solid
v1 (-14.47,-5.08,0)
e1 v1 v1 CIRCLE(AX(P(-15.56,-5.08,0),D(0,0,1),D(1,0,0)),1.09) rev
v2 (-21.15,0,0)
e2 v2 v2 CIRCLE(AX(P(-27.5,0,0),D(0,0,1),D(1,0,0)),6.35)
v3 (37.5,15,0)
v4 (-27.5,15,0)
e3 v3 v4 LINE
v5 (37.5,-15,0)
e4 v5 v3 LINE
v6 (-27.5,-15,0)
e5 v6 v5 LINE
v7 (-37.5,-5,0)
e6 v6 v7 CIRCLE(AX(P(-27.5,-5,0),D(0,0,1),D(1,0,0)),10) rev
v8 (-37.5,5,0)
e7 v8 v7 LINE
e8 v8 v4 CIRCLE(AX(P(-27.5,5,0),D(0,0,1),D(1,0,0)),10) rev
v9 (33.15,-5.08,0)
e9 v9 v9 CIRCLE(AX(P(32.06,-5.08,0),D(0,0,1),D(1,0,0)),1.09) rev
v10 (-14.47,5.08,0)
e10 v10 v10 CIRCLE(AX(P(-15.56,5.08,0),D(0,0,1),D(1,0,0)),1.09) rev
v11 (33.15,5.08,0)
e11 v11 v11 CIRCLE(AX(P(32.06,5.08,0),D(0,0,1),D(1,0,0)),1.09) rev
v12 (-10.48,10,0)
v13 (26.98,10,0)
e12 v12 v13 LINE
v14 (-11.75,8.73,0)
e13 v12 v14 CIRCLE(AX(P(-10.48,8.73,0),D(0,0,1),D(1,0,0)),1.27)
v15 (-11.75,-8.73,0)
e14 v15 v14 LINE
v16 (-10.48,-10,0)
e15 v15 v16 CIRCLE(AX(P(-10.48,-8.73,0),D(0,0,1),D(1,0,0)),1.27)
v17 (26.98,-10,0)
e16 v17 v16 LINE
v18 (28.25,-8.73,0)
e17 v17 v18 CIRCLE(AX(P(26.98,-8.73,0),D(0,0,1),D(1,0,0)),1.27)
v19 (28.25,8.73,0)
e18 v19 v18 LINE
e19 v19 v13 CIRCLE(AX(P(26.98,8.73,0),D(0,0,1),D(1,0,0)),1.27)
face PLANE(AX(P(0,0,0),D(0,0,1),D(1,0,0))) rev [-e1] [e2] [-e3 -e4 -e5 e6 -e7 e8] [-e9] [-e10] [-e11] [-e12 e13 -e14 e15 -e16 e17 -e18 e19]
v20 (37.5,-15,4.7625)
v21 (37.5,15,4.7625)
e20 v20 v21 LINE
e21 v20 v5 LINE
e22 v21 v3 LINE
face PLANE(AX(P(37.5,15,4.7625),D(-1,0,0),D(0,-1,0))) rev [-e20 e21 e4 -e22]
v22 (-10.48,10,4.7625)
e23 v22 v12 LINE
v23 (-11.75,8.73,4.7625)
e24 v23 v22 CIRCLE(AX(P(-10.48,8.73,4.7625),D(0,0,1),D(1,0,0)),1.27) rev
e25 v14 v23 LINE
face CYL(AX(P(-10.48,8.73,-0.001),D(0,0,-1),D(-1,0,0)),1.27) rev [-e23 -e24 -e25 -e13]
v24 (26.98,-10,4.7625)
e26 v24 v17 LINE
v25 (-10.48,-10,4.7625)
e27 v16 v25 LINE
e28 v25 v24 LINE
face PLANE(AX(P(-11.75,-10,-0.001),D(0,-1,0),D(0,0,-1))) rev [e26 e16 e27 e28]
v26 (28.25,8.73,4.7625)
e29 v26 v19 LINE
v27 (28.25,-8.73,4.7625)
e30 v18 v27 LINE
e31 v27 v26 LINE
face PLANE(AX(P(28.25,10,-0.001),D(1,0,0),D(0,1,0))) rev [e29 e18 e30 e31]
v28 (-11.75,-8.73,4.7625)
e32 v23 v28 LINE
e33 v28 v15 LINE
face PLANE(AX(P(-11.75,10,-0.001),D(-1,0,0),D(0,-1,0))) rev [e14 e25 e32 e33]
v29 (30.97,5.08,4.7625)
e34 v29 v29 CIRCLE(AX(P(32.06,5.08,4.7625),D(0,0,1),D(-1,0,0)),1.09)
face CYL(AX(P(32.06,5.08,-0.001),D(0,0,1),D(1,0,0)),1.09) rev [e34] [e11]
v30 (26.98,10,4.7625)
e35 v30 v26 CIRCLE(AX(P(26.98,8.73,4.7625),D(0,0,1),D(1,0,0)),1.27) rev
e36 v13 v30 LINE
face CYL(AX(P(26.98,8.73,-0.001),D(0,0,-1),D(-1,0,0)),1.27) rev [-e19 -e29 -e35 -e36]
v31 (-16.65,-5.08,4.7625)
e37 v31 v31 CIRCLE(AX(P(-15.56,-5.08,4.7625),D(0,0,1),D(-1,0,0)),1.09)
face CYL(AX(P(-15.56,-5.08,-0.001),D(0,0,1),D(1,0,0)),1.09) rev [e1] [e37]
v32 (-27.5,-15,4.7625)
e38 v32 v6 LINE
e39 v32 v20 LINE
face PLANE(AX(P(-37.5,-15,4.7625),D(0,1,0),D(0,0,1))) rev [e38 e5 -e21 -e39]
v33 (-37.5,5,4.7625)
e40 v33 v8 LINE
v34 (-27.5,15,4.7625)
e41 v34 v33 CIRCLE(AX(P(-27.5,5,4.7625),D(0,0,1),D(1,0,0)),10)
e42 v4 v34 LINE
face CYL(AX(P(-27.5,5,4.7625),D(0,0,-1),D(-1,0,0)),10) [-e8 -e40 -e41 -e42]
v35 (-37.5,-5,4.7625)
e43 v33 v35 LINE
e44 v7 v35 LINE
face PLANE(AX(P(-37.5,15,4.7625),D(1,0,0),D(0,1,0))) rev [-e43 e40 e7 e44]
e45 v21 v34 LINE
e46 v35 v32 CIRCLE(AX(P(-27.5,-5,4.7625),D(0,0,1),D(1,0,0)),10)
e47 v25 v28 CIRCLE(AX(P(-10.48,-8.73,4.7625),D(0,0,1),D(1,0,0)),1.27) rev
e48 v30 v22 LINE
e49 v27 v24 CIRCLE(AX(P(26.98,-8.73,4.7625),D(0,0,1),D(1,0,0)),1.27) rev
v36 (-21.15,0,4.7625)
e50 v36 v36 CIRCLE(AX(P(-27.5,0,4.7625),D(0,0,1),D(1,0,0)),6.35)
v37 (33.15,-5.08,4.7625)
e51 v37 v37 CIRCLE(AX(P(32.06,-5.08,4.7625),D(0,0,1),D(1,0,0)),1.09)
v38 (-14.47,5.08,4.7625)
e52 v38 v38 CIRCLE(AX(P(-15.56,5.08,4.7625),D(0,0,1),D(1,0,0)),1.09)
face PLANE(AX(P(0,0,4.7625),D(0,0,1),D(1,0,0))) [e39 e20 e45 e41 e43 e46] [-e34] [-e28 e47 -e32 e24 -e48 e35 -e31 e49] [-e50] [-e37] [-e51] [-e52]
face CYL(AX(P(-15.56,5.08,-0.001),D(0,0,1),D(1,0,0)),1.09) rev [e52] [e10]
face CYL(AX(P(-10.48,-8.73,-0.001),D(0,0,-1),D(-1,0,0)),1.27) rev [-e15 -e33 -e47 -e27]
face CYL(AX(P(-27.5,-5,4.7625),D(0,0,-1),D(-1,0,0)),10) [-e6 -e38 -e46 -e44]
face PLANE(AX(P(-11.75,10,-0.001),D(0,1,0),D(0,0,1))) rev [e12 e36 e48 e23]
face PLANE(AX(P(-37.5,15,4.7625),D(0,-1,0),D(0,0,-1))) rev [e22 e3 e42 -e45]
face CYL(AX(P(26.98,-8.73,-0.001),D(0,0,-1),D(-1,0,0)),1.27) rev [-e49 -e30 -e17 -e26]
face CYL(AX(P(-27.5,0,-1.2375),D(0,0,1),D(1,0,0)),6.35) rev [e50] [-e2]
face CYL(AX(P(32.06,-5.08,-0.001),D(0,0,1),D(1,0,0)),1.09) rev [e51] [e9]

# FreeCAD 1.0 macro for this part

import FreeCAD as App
import Part
import Sketcher
Q = App.Units.Quantity


def edges_at(feature, points):
    """Names of the edges that pass closest to the given points."""
    edges = feature.Shape.Edges
    near = lambda p: min(range(len(edges)), key=lambda i: edges[i].distToShape(Part.Vertex(*p))[0])
    return sorted({f"Edge{near(p) + 1}" for p in points})


def add_polygon(sketch, points):
    """Adds a closed chain of lines whose ends are joined by coincident constraints."""
    first, n = sketch.GeometryCount, len(points)
    for a, b in zip(points, points[1:] + points[:1]):
        sketch.addGeometry(Part.LineSegment(App.Vector(*a, 0), App.Vector(*b, 0)), False)
    for i in range(n):
        sketch.addConstraint(Sketcher.Constraint("Coincident", first + i, 2, first + (i + 1) % n, 1))

doc = App.newDocument("Part")
body = doc.addObject("PartDesign::Body", "Body")

# Sketch on XY plane
sketch1 = body.newObject("Sketcher::SketchObject", "Sketch")
sketch1.AttachmentSupport = (doc.getObject("XY_Plane"), [""])
sketch1.MapMode = "FlatFace"
add_polygon(sketch1, [(-38, 15), (-38, -15), (38, -15), (38, 15)])  # lines 0-3
sketch1.addConstraint([
    Sketcher.Constraint("Vertical", 0),
    Sketcher.Constraint("Horizontal", 1),
    Sketcher.Constraint("Vertical", 2),
    Sketcher.Constraint("Horizontal", 3),
    Sketcher.Constraint("Symmetric", 0, 2, 2, 2, -1, 1),
    Sketcher.Constraint("DistanceX", 1, 1, 1, 2, Q("75 mm")),
    Sketcher.Constraint("DistanceY", 0, 2, 0, 1, Q("30 mm")),
])
pad1 = body.newObject("PartDesign::Pad", "Pad")
pad1.Profile = sketch1
pad1.Length = 4.7625
doc.recompute()

fillet = body.newObject("PartDesign::Fillet", "Fillet")
fillet.Base = (pad1, edges_at(pad1, [(-37.5, -15, 2.381), (-37.5, 15, 2.381)]))
fillet.Radius = 10

# Sketch on XY plane
sketch2 = body.newObject("Sketcher::SketchObject", "Sketch001")
sketch2.AttachmentSupport = (doc.getObject("XY_Plane"), [""])
sketch2.MapMode = "FlatFace"
sketch2.AttachmentOffset = App.Placement(App.Vector(0, 0, 4.7625), App.Rotation())
sketch2.addGeometry(Part.Circle(App.Vector(-28, 0, 0), App.Vector(0, 0, 1), 6), False)
sketch2.addConstraint([
    Sketcher.Constraint("PointOnObject", 0, 3, -1),
    Sketcher.Constraint("Diameter", 0, Q("12.7 mm")),
    Sketcher.Constraint("DistanceX", 0, 3, -1, 1, Q("27.5 mm")),
])
pocket1 = body.newObject("PartDesign::Pocket", "Pocket")
pocket1.Profile = sketch2
pocket1.Length = 6

# Sketch on XY plane
sketch3 = body.newObject("Sketcher::SketchObject", "Sketch002")
sketch3.AttachmentSupport = (doc.getObject("XY_Plane"), [""])
sketch3.MapMode = "FlatFace"
sketch3.AttachmentOffset = App.Placement(App.Vector(0, 0, 4.7625), App.Rotation())
add_polygon(sketch3, [(-12, 10), (-12, -10), (28, -10), (28, 10)])  # lines 0-3
sketch3.addConstraint([
    Sketcher.Constraint("Vertical", 0),
    Sketcher.Constraint("Horizontal", 1),
    Sketcher.Constraint("Vertical", 2),
    Sketcher.Constraint("Horizontal", 3),
    Sketcher.Constraint("DistanceX", 1, 1, 1, 2, Q("40 mm")),
    Sketcher.Constraint("DistanceY", 0, 2, 0, 1, Q("20 mm")),
    Sketcher.Constraint("DistanceY", 0, 2, -1, 1, Q("10 mm")),
    Sketcher.Constraint("DistanceX", 0, 2, -1, 1, Q("11.75 mm")),
])
pocket2 = body.newObject("PartDesign::Pocket", "Pocket001")
pocket2.Profile = sketch3
pocket2.Type = "UpToFirst"
doc.recompute()

fillet2 = body.newObject("PartDesign::Fillet", "Fillet001")
fillet2.Base = (pocket2, edges_at(pocket2, [
    (-11.75, -10, 2.381),
    (-11.75, 10, 2.381),
    (28.25, 10, 2.381),
    (28.25, -10, 2.381),
]))
fillet2.Radius = 1.27

# Sketch on XY plane
sketch4 = body.newObject("Sketcher::SketchObject", "Sketch003")
sketch4.AttachmentSupport = (doc.getObject("XY_Plane"), [""])
sketch4.MapMode = "FlatFace"
sketch4.AttachmentOffset = App.Placement(App.Vector(0, 0, 4.7625), App.Rotation())
sketch4.addGeometry(Part.Circle(App.Vector(-15.6, 5.1, 0), App.Vector(0, 0, 1), 1.1), False)
sketch4.addConstraint([
    Sketcher.Constraint("Diameter", 0, Q("2.18 mm")),
    Sketcher.Constraint("DistanceX", 0, 3, -1, 1, Q("15.56 mm")),
    Sketcher.Constraint("DistanceY", -1, 1, 0, 3, Q("5.08 mm")),
])
pocket3 = body.newObject("PartDesign::Pocket", "Pocket002")
pocket3.Profile = sketch4
pocket3.Type = "UpToFirst"

# Sketch on XY plane
sketch5 = body.newObject("Sketcher::SketchObject", "Sketch004")
sketch5.AttachmentSupport = (doc.getObject("XY_Plane"), [""])
sketch5.MapMode = "FlatFace"
sketch5.AttachmentOffset = App.Placement(App.Vector(0, 0, 4.7625), App.Rotation())
sketch5.addGeometry(Part.Circle(App.Vector(-15.6, -5.1, 0), App.Vector(0, 0, 1), 1.1), False)
sketch5.addConstraint([
    Sketcher.Constraint("Diameter", 0, Q("2.18 mm")),
    Sketcher.Constraint("DistanceX", 0, 3, -1, 1, Q("15.56 mm")),
    Sketcher.Constraint("DistanceY", 0, 3, -1, 1, Q("5.08 mm")),
])
pocket4 = body.newObject("PartDesign::Pocket", "Pocket003")
pocket4.Profile = sketch5
pocket4.Type = "UpToFirst"

# Sketch on XY plane
sketch6 = body.newObject("Sketcher::SketchObject", "Sketch005")
sketch6.AttachmentSupport = (doc.getObject("XY_Plane"), [""])
sketch6.MapMode = "FlatFace"
sketch6.AttachmentOffset = App.Placement(App.Vector(0, 0, 4.7625), App.Rotation())
sketch6.addGeometry(Part.Circle(App.Vector(32.1, -5.1, 0), App.Vector(0, 0, 1), 1.1), False)
sketch6.addConstraint([
    Sketcher.Constraint("Diameter", 0, Q("2.18 mm")),
    Sketcher.Constraint("DistanceX", -1, 1, 0, 3, Q("32.06 mm")),
    Sketcher.Constraint("DistanceY", 0, 3, -1, 1, Q("5.08 mm")),
])
pocket5 = body.newObject("PartDesign::Pocket", "Pocket004")
pocket5.Profile = sketch6
pocket5.Type = "UpToFirst"

# Sketch on XY plane
sketch7 = body.newObject("Sketcher::SketchObject", "Sketch006")
sketch7.AttachmentSupport = (doc.getObject("XY_Plane"), [""])
sketch7.MapMode = "FlatFace"
sketch7.AttachmentOffset = App.Placement(App.Vector(0, 0, 4.7625), App.Rotation())
sketch7.addGeometry(Part.Circle(App.Vector(32.1, 5.1, 0), App.Vector(0, 0, 1), 1.1), False)
sketch7.addConstraint([
    Sketcher.Constraint("Diameter", 0, Q("2.18 mm")),
    Sketcher.Constraint("DistanceX", -1, 1, 0, 3, Q("32.06 mm")),
    Sketcher.Constraint("DistanceY", -1, 1, 0, 3, Q("5.08 mm")),
])
pocket6 = body.newObject("PartDesign::Pocket", "Pocket005")
pocket6.Profile = sketch7
pocket6.Type = "UpToFirst"

doc.recompute()
